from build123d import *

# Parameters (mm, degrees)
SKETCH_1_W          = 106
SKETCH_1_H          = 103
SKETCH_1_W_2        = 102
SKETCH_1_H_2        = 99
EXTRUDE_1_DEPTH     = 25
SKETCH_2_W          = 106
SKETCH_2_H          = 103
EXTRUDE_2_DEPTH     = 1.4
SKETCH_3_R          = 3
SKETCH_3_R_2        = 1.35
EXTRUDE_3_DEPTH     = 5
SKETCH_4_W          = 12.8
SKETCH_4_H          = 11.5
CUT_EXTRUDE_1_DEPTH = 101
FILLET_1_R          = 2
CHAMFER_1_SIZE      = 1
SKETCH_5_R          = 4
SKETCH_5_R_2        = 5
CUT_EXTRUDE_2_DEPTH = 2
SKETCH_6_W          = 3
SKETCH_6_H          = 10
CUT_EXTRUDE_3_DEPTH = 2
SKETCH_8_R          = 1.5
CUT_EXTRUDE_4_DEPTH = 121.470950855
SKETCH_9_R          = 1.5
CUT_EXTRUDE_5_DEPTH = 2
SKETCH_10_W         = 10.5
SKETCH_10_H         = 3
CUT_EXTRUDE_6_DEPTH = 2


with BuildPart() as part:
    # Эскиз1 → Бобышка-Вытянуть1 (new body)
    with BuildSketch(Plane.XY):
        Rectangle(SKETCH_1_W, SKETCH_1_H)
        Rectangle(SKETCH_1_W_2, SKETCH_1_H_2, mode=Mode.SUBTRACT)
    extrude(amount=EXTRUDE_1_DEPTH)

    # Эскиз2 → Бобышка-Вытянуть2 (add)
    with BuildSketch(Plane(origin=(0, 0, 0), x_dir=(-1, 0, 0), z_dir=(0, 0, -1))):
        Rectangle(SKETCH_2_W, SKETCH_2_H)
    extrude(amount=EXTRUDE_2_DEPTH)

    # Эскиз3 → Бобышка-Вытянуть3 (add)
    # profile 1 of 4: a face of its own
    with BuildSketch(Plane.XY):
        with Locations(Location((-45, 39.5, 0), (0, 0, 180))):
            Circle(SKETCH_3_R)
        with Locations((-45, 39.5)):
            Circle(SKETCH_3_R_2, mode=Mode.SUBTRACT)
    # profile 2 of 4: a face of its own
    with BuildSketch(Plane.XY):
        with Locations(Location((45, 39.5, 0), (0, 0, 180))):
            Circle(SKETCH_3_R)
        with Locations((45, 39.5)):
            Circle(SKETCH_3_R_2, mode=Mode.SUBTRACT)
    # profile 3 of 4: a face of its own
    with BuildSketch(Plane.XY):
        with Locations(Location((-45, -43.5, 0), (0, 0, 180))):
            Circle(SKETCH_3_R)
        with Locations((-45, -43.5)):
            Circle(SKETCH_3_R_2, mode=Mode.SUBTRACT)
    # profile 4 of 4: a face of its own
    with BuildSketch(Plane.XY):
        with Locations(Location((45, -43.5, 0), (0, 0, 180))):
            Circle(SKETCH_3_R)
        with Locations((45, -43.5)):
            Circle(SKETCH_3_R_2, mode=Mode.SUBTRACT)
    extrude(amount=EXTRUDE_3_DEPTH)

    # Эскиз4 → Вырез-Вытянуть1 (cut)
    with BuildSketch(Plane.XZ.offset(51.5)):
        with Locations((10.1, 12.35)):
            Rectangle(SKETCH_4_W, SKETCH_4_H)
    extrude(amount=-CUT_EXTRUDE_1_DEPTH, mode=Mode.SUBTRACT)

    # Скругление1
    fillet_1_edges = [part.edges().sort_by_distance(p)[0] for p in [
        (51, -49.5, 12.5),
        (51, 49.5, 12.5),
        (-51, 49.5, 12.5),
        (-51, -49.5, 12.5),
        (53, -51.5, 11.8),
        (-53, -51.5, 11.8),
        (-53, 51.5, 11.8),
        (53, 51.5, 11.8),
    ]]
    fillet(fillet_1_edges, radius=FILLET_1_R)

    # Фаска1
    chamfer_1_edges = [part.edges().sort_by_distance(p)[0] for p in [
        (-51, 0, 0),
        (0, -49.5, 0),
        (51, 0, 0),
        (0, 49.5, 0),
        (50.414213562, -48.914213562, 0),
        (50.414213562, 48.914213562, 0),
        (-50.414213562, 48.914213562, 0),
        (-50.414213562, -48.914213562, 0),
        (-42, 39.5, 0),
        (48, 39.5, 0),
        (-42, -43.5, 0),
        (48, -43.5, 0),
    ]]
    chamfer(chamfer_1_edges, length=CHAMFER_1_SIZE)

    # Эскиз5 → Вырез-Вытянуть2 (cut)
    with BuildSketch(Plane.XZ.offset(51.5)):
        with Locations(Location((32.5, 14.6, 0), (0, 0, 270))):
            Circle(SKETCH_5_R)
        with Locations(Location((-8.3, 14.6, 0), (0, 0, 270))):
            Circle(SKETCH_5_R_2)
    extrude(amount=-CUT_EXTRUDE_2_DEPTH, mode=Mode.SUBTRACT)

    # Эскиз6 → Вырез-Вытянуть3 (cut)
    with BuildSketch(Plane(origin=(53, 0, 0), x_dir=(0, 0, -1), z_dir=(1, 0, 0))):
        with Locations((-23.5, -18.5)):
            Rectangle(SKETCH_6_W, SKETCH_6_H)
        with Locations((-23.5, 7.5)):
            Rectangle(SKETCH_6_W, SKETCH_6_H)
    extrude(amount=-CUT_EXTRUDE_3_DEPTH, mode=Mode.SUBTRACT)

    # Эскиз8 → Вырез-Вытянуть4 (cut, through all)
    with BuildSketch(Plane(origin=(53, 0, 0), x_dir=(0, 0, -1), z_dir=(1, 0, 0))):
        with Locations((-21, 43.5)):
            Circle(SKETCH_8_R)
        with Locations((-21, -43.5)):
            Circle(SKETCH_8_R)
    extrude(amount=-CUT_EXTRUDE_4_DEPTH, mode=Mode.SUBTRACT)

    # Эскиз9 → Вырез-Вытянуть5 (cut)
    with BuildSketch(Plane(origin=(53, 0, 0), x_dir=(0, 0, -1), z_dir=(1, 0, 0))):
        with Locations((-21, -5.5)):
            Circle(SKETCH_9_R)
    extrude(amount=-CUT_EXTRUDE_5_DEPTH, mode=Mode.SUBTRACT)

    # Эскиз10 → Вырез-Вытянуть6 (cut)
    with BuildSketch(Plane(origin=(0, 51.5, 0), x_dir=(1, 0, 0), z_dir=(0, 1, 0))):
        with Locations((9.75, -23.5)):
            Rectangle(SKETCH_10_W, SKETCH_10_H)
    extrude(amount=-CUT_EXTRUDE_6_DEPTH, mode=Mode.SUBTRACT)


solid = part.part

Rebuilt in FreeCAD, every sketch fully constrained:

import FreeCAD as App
import Part
import Sketcher


def edges_at(feature, points):
    """Names of the edges that pass closest to the given points."""
    edges = feature.Shape.Edges
    near = lambda p: min(range(len(edges)), key=lambda i: edges[i].distToShape(Part.Vertex(*p))[0])
    return sorted({f"Edge{near(p) + 1}" for p in points})

doc = App.newDocument("Part")
body = doc.addObject("PartDesign::Body", "Body")

# Sketch on XY plane
sketch1 = body.newObject("Sketcher::SketchObject", "Sketch")
sketch1.AttachmentSupport = (doc.getObject("XY_Plane"), [""])
sketch1.MapMode = "FlatFace"
sketch1.addGeometry(Part.LineSegment(App.Vector(-53, 52, 0), App.Vector(-53, -52, 0)), False)
sketch1.addGeometry(Part.LineSegment(App.Vector(-53, -52, 0), App.Vector(53, -52, 0)), False)
sketch1.addGeometry(Part.LineSegment(App.Vector(53, -52, 0), App.Vector(53, 52, 0)), False)
sketch1.addGeometry(Part.LineSegment(App.Vector(53, 52, 0), App.Vector(-53, 52, 0)), False)
sketch1.addGeometry(Part.LineSegment(App.Vector(51, -50, 0), App.Vector(-51, -50, 0)), False)
sketch1.addGeometry(Part.LineSegment(App.Vector(-51, -50, 0), App.Vector(-51, 50, 0)), False)
sketch1.addGeometry(Part.LineSegment(App.Vector(-51, 50, 0), App.Vector(51, 50, 0)), False)
sketch1.addGeometry(Part.LineSegment(App.Vector(51, 50, 0), App.Vector(51, -50, 0)), False)
sketch1.addConstraint(Sketcher.Constraint("Coincident", 0, 2, 1, 1))
sketch1.addConstraint(Sketcher.Constraint("Coincident", 1, 2, 2, 1))
sketch1.addConstraint(Sketcher.Constraint("Coincident", 2, 2, 3, 1))
sketch1.addConstraint(Sketcher.Constraint("Coincident", 3, 2, 0, 1))
sketch1.addConstraint(Sketcher.Constraint("Coincident", 4, 2, 5, 1))
sketch1.addConstraint(Sketcher.Constraint("Coincident", 5, 2, 6, 1))
sketch1.addConstraint(Sketcher.Constraint("Coincident", 6, 2, 7, 1))
sketch1.addConstraint(Sketcher.Constraint("Coincident", 7, 2, 4, 1))
sketch1.addConstraint(Sketcher.Constraint("Vertical", 0))
sketch1.addConstraint(Sketcher.Constraint("Horizontal", 1))
sketch1.addConstraint(Sketcher.Constraint("Vertical", 2))
sketch1.addConstraint(Sketcher.Constraint("Horizontal", 3))
sketch1.addConstraint(Sketcher.Constraint("Horizontal", 4))
sketch1.addConstraint(Sketcher.Constraint("Vertical", 5))
sketch1.addConstraint(Sketcher.Constraint("Horizontal", 6))
sketch1.addConstraint(Sketcher.Constraint("Vertical", 7))
sketch1.addConstraint(Sketcher.Constraint("Symmetric", 0, 2, 2, 2, -1, 1))
sketch1.addConstraint(Sketcher.Constraint("Symmetric", 4, 2, 6, 2, -1, 1))
sketch1.addConstraint(Sketcher.Constraint("DistanceX", 1, 1, 1, 2, 106.0))
sketch1.addConstraint(Sketcher.Constraint("DistanceX", 4, 2, 4, 1, 102.0))
sketch1.addConstraint(Sketcher.Constraint("DistanceY", 0, 2, 0, 1, 103.0))
sketch1.addConstraint(Sketcher.Constraint("DistanceY", 5, 1, 5, 2, 99.0))
pad1 = body.newObject("PartDesign::Pad", "Pad")
pad1.Profile = sketch1
pad1.Length = 25

# Sketch on XY plane
sketch2 = body.newObject("Sketcher::SketchObject", "Sketch001")
sketch2.AttachmentSupport = (doc.getObject("XY_Plane"), [""])
sketch2.MapMode = "FlatFace"
sketch2.addGeometry(Part.LineSegment(App.Vector(53, 52, 0), App.Vector(53, -52, 0)), False)
sketch2.addGeometry(Part.LineSegment(App.Vector(53, -52, 0), App.Vector(-53, -52, 0)), False)
sketch2.addGeometry(Part.LineSegment(App.Vector(-53, -52, 0), App.Vector(-53, 52, 0)), False)
sketch2.addGeometry(Part.LineSegment(App.Vector(-53, 52, 0), App.Vector(53, 52, 0)), False)
sketch2.addConstraint(Sketcher.Constraint("Coincident", 0, 2, 1, 1))
sketch2.addConstraint(Sketcher.Constraint("Coincident", 1, 2, 2, 1))
sketch2.addConstraint(Sketcher.Constraint("Coincident", 2, 2, 3, 1))
sketch2.addConstraint(Sketcher.Constraint("Coincident", 3, 2, 0, 1))
sketch2.addConstraint(Sketcher.Constraint("Vertical", 0))
sketch2.addConstraint(Sketcher.Constraint("Horizontal", 1))
sketch2.addConstraint(Sketcher.Constraint("Vertical", 2))
sketch2.addConstraint(Sketcher.Constraint("Horizontal", 3))
sketch2.addConstraint(Sketcher.Constraint("Symmetric", 0, 2, 2, 2, -1, 1))
sketch2.addConstraint(Sketcher.Constraint("DistanceX", 1, 2, 1, 1, 106.0))
sketch2.addConstraint(Sketcher.Constraint("DistanceY", 0, 2, 0, 1, 103.0))
pad2 = body.newObject("PartDesign::Pad", "Pad001")
pad2.Profile = sketch2
pad2.Length = 1.4
pad2.Reversed = True

# Sketch on XY plane
sketch3 = body.newObject("Sketcher::SketchObject", "Sketch002")
sketch3.AttachmentSupport = (doc.getObject("XY_Plane"), [""])
sketch3.MapMode = "FlatFace"
sketch3.addGeometry(Part.Circle(App.Vector(-45, 39.5, 0), App.Vector(0, 0, 1), 3), False)
sketch3.addGeometry(Part.Circle(App.Vector(-45, 39.5, 0), App.Vector(0, 0, 1), 1.4), False)
sketch3.addGeometry(Part.Circle(App.Vector(45, 39.5, 0), App.Vector(0, 0, 1), 3), False)
sketch3.addGeometry(Part.Circle(App.Vector(45, 39.5, 0), App.Vector(0, 0, 1), 1.4), False)
sketch3.addGeometry(Part.Circle(App.Vector(-45, -43.5, 0), App.Vector(0, 0, 1), 3), False)
sketch3.addGeometry(Part.Circle(App.Vector(-45, -43.5, 0), App.Vector(0, 0, 1), 1.4), False)
sketch3.addGeometry(Part.Circle(App.Vector(45, -43.5, 0), App.Vector(0, 0, 1), 3), False)
sketch3.addGeometry(Part.Circle(App.Vector(45, -43.5, 0), App.Vector(0, 0, 1), 1.4), False)
sketch3.addConstraint(Sketcher.Constraint("Coincident", 1, 3, 0, 3))
sketch3.addConstraint(Sketcher.Constraint("Coincident", 3, 3, 2, 3))
sketch3.addConstraint(Sketcher.Constraint("Coincident", 5, 3, 4, 3))
sketch3.addConstraint(Sketcher.Constraint("Coincident", 7, 3, 6, 3))
sketch3.addConstraint(Sketcher.Constraint("Equal", 0, 2))
sketch3.addConstraint(Sketcher.Constraint("Equal", 1, 3))
sketch3.addConstraint(Sketcher.Constraint("Equal", 2, 4))
sketch3.addConstraint(Sketcher.Constraint("Equal", 3, 5))
sketch3.addConstraint(Sketcher.Constraint("Equal", 4, 6))
sketch3.addConstraint(Sketcher.Constraint("Equal", 5, 7))
sketch3.addConstraint(Sketcher.Constraint("Symmetric", 0, 3, 2, 3, -2))
sketch3.addConstraint(Sketcher.Constraint("Symmetric", 4, 3, 6, 3, -2))
sketch3.addConstraint(Sketcher.Constraint("Vertical", 1, 3, 4, 3))
sketch3.addConstraint(Sketcher.Constraint("Diameter", 0, 6.0))
sketch3.addConstraint(Sketcher.Constraint("Diameter", 1, 2.7))
sketch3.addConstraint(Sketcher.Constraint("DistanceX", 0, 3, -1, 1, 45.0))
sketch3.addConstraint(Sketcher.Constraint("DistanceY", 4, 3, 0, 3, 83.0))
sketch3.addConstraint(Sketcher.Constraint("DistanceY", -1, 1, 0, 3, 39.5))
pad3 = body.newObject("PartDesign::Pad", "Pad002")
pad3.Profile = sketch3
pad3.Length = 5

# Sketch on XZ plane
sketch4 = body.newObject("Sketcher::SketchObject", "Sketch003")
sketch4.AttachmentSupport = (doc.getObject("XZ_Plane"), [""])
sketch4.MapMode = "FlatFace"
sketch4.AttachmentOffset = App.Placement(App.Vector(0, 0, 51.5), App.Rotation())
sketch4.addGeometry(Part.LineSegment(App.Vector(4, 18, 0), App.Vector(4, 7, 0)), False)
sketch4.addGeometry(Part.LineSegment(App.Vector(4, 7, 0), App.Vector(16, 7, 0)), False)
sketch4.addGeometry(Part.LineSegment(App.Vector(16, 7, 0), App.Vector(16, 18, 0)), False)
sketch4.addGeometry(Part.LineSegment(App.Vector(16, 18, 0), App.Vector(4, 18, 0)), False)
sketch4.addConstraint(Sketcher.Constraint("Coincident", 0, 2, 1, 1))
sketch4.addConstraint(Sketcher.Constraint("Coincident", 1, 2, 2, 1))
sketch4.addConstraint(Sketcher.Constraint("Coincident", 2, 2, 3, 1))
sketch4.addConstraint(Sketcher.Constraint("Coincident", 3, 2, 0, 1))
sketch4.addConstraint(Sketcher.Constraint("Vertical", 0))
sketch4.addConstraint(Sketcher.Constraint("Horizontal", 1))
sketch4.addConstraint(Sketcher.Constraint("Vertical", 2))
sketch4.addConstraint(Sketcher.Constraint("Horizontal", 3))
sketch4.addConstraint(Sketcher.Constraint("DistanceX", 1, 1, 1, 2, 12.8))
sketch4.addConstraint(Sketcher.Constraint("DistanceY", 0, 2, 0, 1, 11.5))
sketch4.addConstraint(Sketcher.Constraint("DistanceX", -1, 1, 0, 2, 3.7))
sketch4.addConstraint(Sketcher.Constraint("DistanceY", -1, 1, 0, 2, 6.6))
pocket1 = body.newObject("PartDesign::Pocket", "Pocket")
pocket1.Profile = sketch4
pocket1.Length = 101
doc.recompute()

fillet = body.newObject("PartDesign::Fillet", "Fillet")
fillet.Base = (pocket1, edges_at(pocket1, [
    (51, -49.5, 12.5),
    (51, 49.5, 12.5),
    (-51, 49.5, 12.5),
    (-51, -49.5, 12.5),
    (53, -51.5, 11.8),
    (-53, -51.5, 11.8),
    (-53, 51.5, 11.8),
    (53, 51.5, 11.8),
]))
fillet.Radius = 2
doc.recompute()

chamfer = body.newObject("PartDesign::Chamfer", "Chamfer")
chamfer.Base = (fillet, edges_at(fillet, [
    (-51, 0, 0),
    (0, -49.5, 0),
    (51, 0, 0),
    (0, 49.5, 0),
    (50.414, -48.914, 0),
    (50.414, 48.914, 0),
    (-50.414, 48.914, 0),
    (-50.414, -48.914, 0),
    (-42, 39.5, 0),
    (48, 39.5, 0),
    (-42, -43.5, 0),
    (48, -43.5, 0),
]))
chamfer.Size = 1

# Sketch on XZ plane
sketch5 = body.newObject("Sketcher::SketchObject", "Sketch004")
sketch5.AttachmentSupport = (doc.getObject("XZ_Plane"), [""])
sketch5.MapMode = "FlatFace"
sketch5.AttachmentOffset = App.Placement(App.Vector(0, 0, 51.5), App.Rotation())
sketch5.addGeometry(Part.Circle(App.Vector(32.5, 14.6, 0), App.Vector(0, 0, 1), 4), False)
sketch5.addGeometry(Part.Circle(App.Vector(-8.3, 14.6, 0), App.Vector(0, 0, 1), 5), False)
sketch5.addConstraint(Sketcher.Constraint("Horizontal", 0, 3, 1, 3))
sketch5.addConstraint(Sketcher.Constraint("Diameter", 0, 8.0))
sketch5.addConstraint(Sketcher.Constraint("Diameter", 1, 10.0))
sketch5.addConstraint(Sketcher.Constraint("DistanceX", -1, 1, 0, 3, 32.5))
sketch5.addConstraint(Sketcher.Constraint("DistanceY", -1, 1, 0, 3, 14.6))
sketch5.addConstraint(Sketcher.Constraint("DistanceX", 1, 3, -1, 1, 8.3))
pocket2 = body.newObject("PartDesign::Pocket", "Pocket001")
pocket2.Profile = sketch5
pocket2.Length = 2

# Sketch on YZ plane
sketch6 = body.newObject("Sketcher::SketchObject", "Sketch005")
sketch6.AttachmentSupport = (doc.getObject("YZ_Plane"), [""])
sketch6.MapMode = "FlatFace"
sketch6.AttachmentOffset = App.Placement(App.Vector(0, 0, 53), App.Rotation())
sketch6.addGeometry(Part.LineSegment(App.Vector(-13.5, 25, 0), App.Vector(-23.5, 25, 0)), False)
sketch6.addGeometry(Part.LineSegment(App.Vector(-23.5, 25, 0), App.Vector(-23.5, 22, 0)), False)
sketch6.addGeometry(Part.LineSegment(App.Vector(-23.5, 22, 0), App.Vector(-13.5, 22, 0)), False)
sketch6.addGeometry(Part.LineSegment(App.Vector(-13.5, 22, 0), App.Vector(-13.5, 25, 0)), False)
sketch6.addGeometry(Part.LineSegment(App.Vector(12.5, 25, 0), App.Vector(2.5, 25, 0)), False)
sketch6.addGeometry(Part.LineSegment(App.Vector(2.5, 25, 0), App.Vector(2.5, 22, 0)), False)
sketch6.addGeometry(Part.LineSegment(App.Vector(2.5, 22, 0), App.Vector(12.5, 22, 0)), False)
sketch6.addGeometry(Part.LineSegment(App.Vector(12.5, 22, 0), App.Vector(12.5, 25, 0)), False)
sketch6.addConstraint(Sketcher.Constraint("Coincident", 0, 2, 1, 1))
sketch6.addConstraint(Sketcher.Constraint("Coincident", 1, 2, 2, 1))
sketch6.addConstraint(Sketcher.Constraint("Coincident", 2, 2, 3, 1))
sketch6.addConstraint(Sketcher.Constraint("Coincident", 3, 2, 0, 1))
sketch6.addConstraint(Sketcher.Constraint("Coincident", 4, 2, 5, 1))
sketch6.addConstraint(Sketcher.Constraint("Coincident", 5, 2, 6, 1))
sketch6.addConstraint(Sketcher.Constraint("Coincident", 6, 2, 7, 1))
sketch6.addConstraint(Sketcher.Constraint("Coincident", 7, 2, 4, 1))
sketch6.addConstraint(Sketcher.Constraint("Horizontal", 0))
sketch6.addConstraint(Sketcher.Constraint("Vertical", 1))
sketch6.addConstraint(Sketcher.Constraint("Horizontal", 2))
sketch6.addConstraint(Sketcher.Constraint("Vertical", 3))
sketch6.addConstraint(Sketcher.Constraint("Horizontal", 4))
sketch6.addConstraint(Sketcher.Constraint("Vertical", 5))
sketch6.addConstraint(Sketcher.Constraint("Horizontal", 6))
sketch6.addConstraint(Sketcher.Constraint("Vertical", 7))
sketch6.addConstraint(Sketcher.Constraint("Horizontal", 3, 2, 4, 2))
sketch6.addConstraint(Sketcher.Constraint("Horizontal", 2, 2, 5, 2))
sketch6.addConstraint(Sketcher.Constraint("Equal", 2, 4))
sketch6.addConstraint(Sketcher.Constraint("DistanceX", 0, 2, 0, 1, 10.0))
sketch6.addConstraint(Sketcher.Constraint("DistanceY", 1, 2, 1, 1, 3.0))
sketch6.addConstraint(Sketcher.Constraint("DistanceY", -1, 1, 0, 2, 25.0))
sketch6.addConstraint(Sketcher.Constraint("DistanceX", 3, 2, 4, 2, 16.0))
sketch6.addConstraint(Sketcher.Constraint("DistanceX", 0, 2, -1, 1, 23.5))
pocket3 = body.newObject("PartDesign::Pocket", "Pocket002")
pocket3.Profile = sketch6
pocket3.Length = 2

# Sketch on YZ plane
sketch7 = body.newObject("Sketcher::SketchObject", "Sketch006")
sketch7.AttachmentSupport = (doc.getObject("YZ_Plane"), [""])
sketch7.MapMode = "FlatFace"
sketch7.AttachmentOffset = App.Placement(App.Vector(0, 0, 53), App.Rotation())
sketch7.addGeometry(Part.Circle(App.Vector(43.5, 21, 0), App.Vector(0, 0, 1), 1.5), False)
sketch7.addGeometry(Part.Circle(App.Vector(-43.5, 21, 0), App.Vector(0, 0, 1), 1.5), False)
sketch7.addConstraint(Sketcher.Constraint("Equal", 0, 1))
sketch7.addConstraint(Sketcher.Constraint("Symmetric", 0, 3, 1, 3, -2))
sketch7.addConstraint(Sketcher.Constraint("Diameter", 0, 3.0))
sketch7.addConstraint(Sketcher.Constraint("DistanceY", -1, 1, 0, 3, 21.0))
sketch7.addConstraint(Sketcher.Constraint("DistanceX", 1, 3, 0, 3, 87.0))
pocket4 = body.newObject("PartDesign::Pocket", "Pocket003")
pocket4.Profile = sketch7
pocket4.Type = "ThroughAll"

# Sketch on YZ plane
sketch8 = body.newObject("Sketcher::SketchObject", "Sketch007")
sketch8.AttachmentSupport = (doc.getObject("YZ_Plane"), [""])
sketch8.MapMode = "FlatFace"
sketch8.AttachmentOffset = App.Placement(App.Vector(0, 0, 53), App.Rotation())
sketch8.addGeometry(Part.Circle(App.Vector(-5.5, 21, 0), App.Vector(0, 0, 1), 1.5), False)
sketch8.addConstraint(Sketcher.Constraint("Diameter", 0, 3.0))
sketch8.addConstraint(Sketcher.Constraint("DistanceY", -1, 1, 0, 3, 21.0))
sketch8.addConstraint(Sketcher.Constraint("DistanceX", 0, 3, -1, 1, 5.5))
pocket5 = body.newObject("PartDesign::Pocket", "Pocket004")
pocket5.Profile = sketch8
pocket5.Length = 2

# Sketch on XZ plane
sketch9 = body.newObject("Sketcher::SketchObject", "Sketch008")
sketch9.AttachmentSupport = (doc.getObject("XZ_Plane"), [""])
sketch9.MapMode = "FlatFace"
sketch9.AttachmentOffset = App.Placement(App.Vector(0, 0, -51.5), App.Rotation())
sketch9.addGeometry(Part.LineSegment(App.Vector(4.5, 22, 0), App.Vector(4.5, 25, 0)), False)
sketch9.addGeometry(Part.LineSegment(App.Vector(4.5, 25, 0), App.Vector(15, 25, 0)), False)
sketch9.addGeometry(Part.LineSegment(App.Vector(15, 25, 0), App.Vector(15, 22, 0)), False)
sketch9.addGeometry(Part.LineSegment(App.Vector(15, 22, 0), App.Vector(4.5, 22, 0)), False)
sketch9.addConstraint(Sketcher.Constraint("Coincident", 0, 2, 1, 1))
sketch9.addConstraint(Sketcher.Constraint("Coincident", 1, 2, 2, 1))
sketch9.addConstraint(Sketcher.Constraint("Coincident", 2, 2, 3, 1))
sketch9.addConstraint(Sketcher.Constraint("Coincident", 3, 2, 0, 1))
sketch9.addConstraint(Sketcher.Constraint("Vertical", 0))
sketch9.addConstraint(Sketcher.Constraint("Horizontal", 1))
sketch9.addConstraint(Sketcher.Constraint("Vertical", 2))
sketch9.addConstraint(Sketcher.Constraint("Horizontal", 3))
sketch9.addConstraint(Sketcher.Constraint("DistanceY", 0, 1, 0, 2, 3.0))
sketch9.addConstraint(Sketcher.Constraint("DistanceX", 1, 1, 1, 2, 10.5))
sketch9.addConstraint(Sketcher.Constraint("DistanceY", -1, 1, 0, 2, 25.0))
sketch9.addConstraint(Sketcher.Constraint("DistanceX", -1, 1, 1, 2, 15.0))
pocket6 = body.newObject("PartDesign::Pocket", "Pocket005")
pocket6.Profile = sketch9
pocket6.Length = 2
pocket6.Reversed = True

doc.recompute()
